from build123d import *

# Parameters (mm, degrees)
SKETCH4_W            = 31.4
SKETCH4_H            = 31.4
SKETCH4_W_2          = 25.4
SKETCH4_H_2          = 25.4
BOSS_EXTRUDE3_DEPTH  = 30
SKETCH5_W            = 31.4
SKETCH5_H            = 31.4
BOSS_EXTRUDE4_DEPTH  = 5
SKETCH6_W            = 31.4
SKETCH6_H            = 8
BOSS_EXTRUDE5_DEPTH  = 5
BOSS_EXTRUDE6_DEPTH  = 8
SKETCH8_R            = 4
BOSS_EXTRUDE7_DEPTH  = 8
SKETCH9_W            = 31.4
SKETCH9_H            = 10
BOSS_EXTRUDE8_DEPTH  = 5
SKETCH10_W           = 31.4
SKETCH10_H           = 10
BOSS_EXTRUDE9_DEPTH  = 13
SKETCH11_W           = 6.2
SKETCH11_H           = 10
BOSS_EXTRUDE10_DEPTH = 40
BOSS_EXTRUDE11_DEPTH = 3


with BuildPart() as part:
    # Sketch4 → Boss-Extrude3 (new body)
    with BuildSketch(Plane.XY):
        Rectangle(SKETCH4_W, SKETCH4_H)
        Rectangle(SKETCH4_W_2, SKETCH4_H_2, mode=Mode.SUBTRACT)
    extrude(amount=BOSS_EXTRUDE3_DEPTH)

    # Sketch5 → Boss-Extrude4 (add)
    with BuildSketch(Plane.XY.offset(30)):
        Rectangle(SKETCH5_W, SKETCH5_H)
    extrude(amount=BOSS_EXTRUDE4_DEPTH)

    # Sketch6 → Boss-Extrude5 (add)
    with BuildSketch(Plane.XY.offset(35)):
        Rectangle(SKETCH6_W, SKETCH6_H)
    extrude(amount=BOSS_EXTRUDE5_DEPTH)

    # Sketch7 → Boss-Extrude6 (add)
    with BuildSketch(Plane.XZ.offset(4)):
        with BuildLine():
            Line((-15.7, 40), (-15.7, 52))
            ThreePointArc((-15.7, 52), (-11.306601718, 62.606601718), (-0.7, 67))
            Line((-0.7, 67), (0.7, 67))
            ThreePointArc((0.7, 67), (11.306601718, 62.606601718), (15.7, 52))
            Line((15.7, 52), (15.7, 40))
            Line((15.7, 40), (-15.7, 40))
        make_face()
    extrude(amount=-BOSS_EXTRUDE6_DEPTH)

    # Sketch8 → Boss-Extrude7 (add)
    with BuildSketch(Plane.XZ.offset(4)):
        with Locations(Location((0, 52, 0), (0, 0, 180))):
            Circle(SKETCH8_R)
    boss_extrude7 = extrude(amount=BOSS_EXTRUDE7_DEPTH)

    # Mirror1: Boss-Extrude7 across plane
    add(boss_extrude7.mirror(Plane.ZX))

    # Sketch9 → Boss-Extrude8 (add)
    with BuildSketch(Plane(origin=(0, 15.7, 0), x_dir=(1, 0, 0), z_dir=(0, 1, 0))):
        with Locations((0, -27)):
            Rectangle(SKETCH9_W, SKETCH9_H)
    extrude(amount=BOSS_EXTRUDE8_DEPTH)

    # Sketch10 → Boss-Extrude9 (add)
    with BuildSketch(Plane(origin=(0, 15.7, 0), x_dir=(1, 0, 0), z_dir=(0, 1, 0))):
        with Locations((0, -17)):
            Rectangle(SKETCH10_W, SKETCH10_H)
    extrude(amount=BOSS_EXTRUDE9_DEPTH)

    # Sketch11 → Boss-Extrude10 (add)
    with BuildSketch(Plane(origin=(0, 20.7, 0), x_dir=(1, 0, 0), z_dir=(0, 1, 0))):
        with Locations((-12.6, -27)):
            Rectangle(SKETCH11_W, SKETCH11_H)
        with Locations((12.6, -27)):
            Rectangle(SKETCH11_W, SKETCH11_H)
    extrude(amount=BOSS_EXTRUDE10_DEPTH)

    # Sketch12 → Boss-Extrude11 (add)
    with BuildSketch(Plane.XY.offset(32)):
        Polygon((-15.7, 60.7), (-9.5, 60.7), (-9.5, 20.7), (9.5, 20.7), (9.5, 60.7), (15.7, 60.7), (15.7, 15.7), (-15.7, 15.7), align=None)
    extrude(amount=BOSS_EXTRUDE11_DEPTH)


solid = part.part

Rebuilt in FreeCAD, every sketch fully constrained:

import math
import FreeCAD as App
import Part
import Sketcher

V = App.Vector
Q = App.Units.Quantity

doc = App.newDocument("Part")
body = doc.addObject("PartDesign::Body", "Body")

# Sketch on XY plane
sketch1 = body.newObject("Sketcher::SketchObject", "Sketch")
sketch1.AttachmentSupport = (doc.getObject("XY_Plane"), [""])
sketch1.MapMode = "FlatFace"
sketch1.addGeometry([
    Part.LineSegment(V(-15.7, 15.7, 0), V(-15.7, -15.7, 0)),  # 0
    Part.LineSegment(V(-15.7, -15.7, 0), V(15.7, -15.7, 0)),  # 1
    Part.LineSegment(V(15.7, -15.7, 0), V(15.7, 15.7, 0)),  # 2
    Part.LineSegment(V(15.7, 15.7, 0), V(-15.7, 15.7, 0)),  # 3
    Part.LineSegment(V(12.7, -12.7, 0), V(-12.7, -12.7, 0)),  # 4
    Part.LineSegment(V(-12.7, -12.7, 0), V(-12.7, 12.7, 0)),  # 5
    Part.LineSegment(V(-12.7, 12.7, 0), V(12.7, 12.7, 0)),  # 6
    Part.LineSegment(V(12.7, 12.7, 0), V(12.7, -12.7, 0)),  # 7
], False)
sketch1.addConstraint([
    Sketcher.Constraint("Coincident", 0, 2, 1, 1),
    Sketcher.Constraint("Coincident", 1, 2, 2, 1),
    Sketcher.Constraint("Coincident", 2, 2, 3, 1),
    Sketcher.Constraint("Coincident", 3, 2, 0, 1),
    Sketcher.Constraint("Coincident", 4, 2, 5, 1),
    Sketcher.Constraint("Coincident", 5, 2, 6, 1),
    Sketcher.Constraint("Coincident", 6, 2, 7, 1),
    Sketcher.Constraint("Coincident", 7, 2, 4, 1),
    Sketcher.Constraint("Vertical", 0),
    Sketcher.Constraint("Horizontal", 1),
    Sketcher.Constraint("Vertical", 2),
    Sketcher.Constraint("Horizontal", 3),
    Sketcher.Constraint("Horizontal", 4),
    Sketcher.Constraint("Vertical", 5),
    Sketcher.Constraint("Horizontal", 6),
    Sketcher.Constraint("Vertical", 7),
    Sketcher.Constraint("Symmetric", 0, 2, 2, 2, -1, 1),
    Sketcher.Constraint("Symmetric", 4, 2, 6, 2, -1, 1),
    Sketcher.Constraint("Equal", 3, 0),
    Sketcher.Constraint("Equal", 6, 5),
    Sketcher.Constraint("DistanceX", 1, 1, 1, 2, Q("31.4 mm")),
    Sketcher.Constraint("DistanceX", 4, 2, 4, 1, Q("25.4 mm")),
])
pad1 = body.newObject("PartDesign::Pad", "Pad")
pad1.Profile = sketch1
pad1.Length = 30

# Sketch on XY plane
sketch2 = body.newObject("Sketcher::SketchObject", "Sketch001")
sketch2.AttachmentSupport = (doc.getObject("XY_Plane"), [""])
sketch2.MapMode = "FlatFace"
sketch2.AttachmentOffset = App.Placement(V(0, 0, 30), App.Rotation())
sketch2.addGeometry([
    Part.LineSegment(V(-15.7, 15.7, 0), V(-15.7, -15.7, 0)),
    Part.LineSegment(V(-15.7, -15.7, 0), V(15.7, -15.7, 0)),
    Part.LineSegment(V(15.7, -15.7, 0), V(15.7, 15.7, 0)),
    Part.LineSegment(V(15.7, 15.7, 0), V(-15.7, 15.7, 0)),
], False)
sketch2.addConstraint([
    Sketcher.Constraint("Coincident", 0, 2, 1, 1),
    Sketcher.Constraint("Coincident", 1, 2, 2, 1),
    Sketcher.Constraint("Coincident", 2, 2, 3, 1),
    Sketcher.Constraint("Coincident", 3, 2, 0, 1),
    Sketcher.Constraint("Vertical", 0),
    Sketcher.Constraint("Horizontal", 1),
    Sketcher.Constraint("Vertical", 2),
    Sketcher.Constraint("Horizontal", 3),
    Sketcher.Constraint("Symmetric", 0, 2, 2, 2, -1, 1),
    Sketcher.Constraint("Equal", 3, 0),
    Sketcher.Constraint("DistanceX", 1, 1, 1, 2, Q("31.4 mm")),
])
pad2 = body.newObject("PartDesign::Pad", "Pad001")
pad2.Profile = sketch2
pad2.Length = 5

# Sketch on XY plane
sketch3 = body.newObject("Sketcher::SketchObject", "Sketch002")
sketch3.AttachmentSupport = (doc.getObject("XY_Plane"), [""])
sketch3.MapMode = "FlatFace"
sketch3.AttachmentOffset = App.Placement(V(0, 0, 35), App.Rotation())
sketch3.addGeometry([
    Part.LineSegment(V(-15.7, 4, 0), V(-15.7, -4, 0)),
    Part.LineSegment(V(-15.7, -4, 0), V(15.7, -4, 0)),
    Part.LineSegment(V(15.7, -4, 0), V(15.7, 4, 0)),
    Part.LineSegment(V(15.7, 4, 0), V(-15.7, 4, 0)),
], False)
sketch3.addConstraint([
    Sketcher.Constraint("Coincident", 0, 2, 1, 1),
    Sketcher.Constraint("Coincident", 1, 2, 2, 1),
    Sketcher.Constraint("Coincident", 2, 2, 3, 1),
    Sketcher.Constraint("Coincident", 3, 2, 0, 1),
    Sketcher.Constraint("Vertical", 0),
    Sketcher.Constraint("Horizontal", 1),
    Sketcher.Constraint("Vertical", 2),
    Sketcher.Constraint("Horizontal", 3),
    Sketcher.Constraint("Symmetric", 0, 2, 2, 2, -1, 1),
    Sketcher.Constraint("DistanceY", 0, 2, 0, 1, Q("8 mm")),
    Sketcher.Constraint("DistanceX", 1, 1, 1, 2, Q("31.4 mm")),
])
pad3 = body.newObject("PartDesign::Pad", "Pad002")
pad3.Profile = sketch3
pad3.Length = 5

# Sketch on XZ plane
sketch4 = body.newObject("Sketcher::SketchObject", "Sketch003")
sketch4.AttachmentSupport = (doc.getObject("XZ_Plane"), [""])
sketch4.MapMode = "FlatFace"
sketch4.AttachmentOffset = App.Placement(V(0, 0, 4), App.Rotation())
sketch4.addGeometry([
    Part.LineSegment(V(-15.7, 52, 0), V(-15.7, 40, 0)),  # 0
    Part.LineSegment(V(-15.7, 40, 0), V(15.7, 40, 0)),  # 1
    Part.LineSegment(V(15.7, 40, 0), V(15.7, 52, 0)),  # 2
    Part.ArcOfCircle(Part.Circle(V(0.7, 52, 0), V(0, 0, 1), 15), math.radians(0), math.radians(90)),  # 3
    Part.LineSegment(V(0.7, 67, 0), V(-0.7, 67, 0)),  # 4
    Part.ArcOfCircle(Part.Circle(V(-0.7, 52, 0), V(0, 0, 1), 15), math.radians(90), math.radians(180)),  # 5
], False)
sketch4.addConstraint([
    Sketcher.Constraint("Coincident", 0, 2, 1, 1),
    Sketcher.Constraint("Coincident", 1, 2, 2, 1),
    Sketcher.Constraint("Tangent", 2, 2, 3, 1),
    Sketcher.Constraint("Tangent", 3, 2, 4, 1),
    Sketcher.Constraint("Tangent", 4, 2, 5, 1),
    Sketcher.Constraint("Tangent", 5, 2, 0, 1),
    Sketcher.Constraint("Vertical", 0),
    Sketcher.Constraint("Horizontal", 1),
    Sketcher.Constraint("Vertical", 2),
    Sketcher.Constraint("Horizontal", 4),
    Sketcher.Constraint("Equal", 3, 5),
    Sketcher.Constraint("Radius", 3, Q("15 mm")),
    Sketcher.Constraint("DistanceY", 0, 2, 0, 1, Q("12 mm")),
    Sketcher.Constraint("DistanceX", 1, 1, 1, 2, Q("31.4 mm")),
    Sketcher.Constraint("DistanceY", -1, 1, 3, 3, Q("52 mm")),
    Sketcher.Constraint("DistanceX", -1, 1, 3, 3, Q("0.7 mm")),
])
pad4 = body.newObject("PartDesign::Pad", "Pad003")
pad4.Profile = sketch4
pad4.Length = 8
pad4.Reversed = True

# Sketch on XZ plane
sketch5 = body.newObject("Sketcher::SketchObject", "Sketch004")
sketch5.AttachmentSupport = (doc.getObject("XZ_Plane"), [""])
sketch5.MapMode = "FlatFace"
sketch5.AttachmentOffset = App.Placement(V(0, 0, 4), App.Rotation())
sketch5.addGeometry(Part.Circle(V(0, 52, 0), V(0, 0, 1), 4), False)
sketch5.addConstraint([
    Sketcher.Constraint("PointOnObject", 0, 3, -2),
    Sketcher.Constraint("Diameter", 0, Q("8 mm")),
    Sketcher.Constraint("DistanceY", -1, 1, 0, 3, Q("52 mm")),
])
pad5 = body.newObject("PartDesign::Pad", "Pad004")
pad5.Profile = sketch5
pad5.Length = 8
doc.recompute()

mirrored = body.newObject("PartDesign::Mirrored", "Mirrored")
mirrored.Originals = [pad5]
mirrored.MirrorPlane = (doc.getObject("XZ_Plane"), [""])
body.Tip = mirrored

# Sketch on XZ plane
sketch6 = body.newObject("Sketcher::SketchObject", "Sketch005")
sketch6.AttachmentSupport = (doc.getObject("XZ_Plane"), [""])
sketch6.MapMode = "FlatFace"
sketch6.AttachmentOffset = App.Placement(V(0, 0, -15.7), App.Rotation())
sketch6.addGeometry([
    Part.LineSegment(V(-15.7, 22, 0), V(-15.7, 32, 0)),
    Part.LineSegment(V(-15.7, 32, 0), V(15.7, 32, 0)),
    Part.LineSegment(V(15.7, 32, 0), V(15.7, 22, 0)),
    Part.LineSegment(V(15.7, 22, 0), V(-15.7, 22, 0)),
], False)
sketch6.addConstraint([
    Sketcher.Constraint("Coincident", 0, 2, 1, 1),
    Sketcher.Constraint("Coincident", 1, 2, 2, 1),
    Sketcher.Constraint("Coincident", 2, 2, 3, 1),
    Sketcher.Constraint("Coincident", 3, 2, 0, 1),
    Sketcher.Constraint("Vertical", 0),
    Sketcher.Constraint("Horizontal", 1),
    Sketcher.Constraint("Vertical", 2),
    Sketcher.Constraint("Horizontal", 3),
    Sketcher.Constraint("DistanceY", 0, 1, 0, 2, Q("10 mm")),
    Sketcher.Constraint("DistanceX", 1, 1, 1, 2, Q("31.4 mm")),
    Sketcher.Constraint("DistanceY", -1, 1, 0, 2, Q("32 mm")),
    Sketcher.Constraint("DistanceX", 0, 2, -1, 1, Q("15.7 mm")),
])
pad6 = body.newObject("PartDesign::Pad", "Pad005")
pad6.Profile = sketch6
pad6.Length = 5
pad6.Reversed = True

# Sketch on XZ plane
sketch7 = body.newObject("Sketcher::SketchObject", "Sketch006")
sketch7.AttachmentSupport = (doc.getObject("XZ_Plane"), [""])
sketch7.MapMode = "FlatFace"
sketch7.AttachmentOffset = App.Placement(V(0, 0, -15.7), App.Rotation())
sketch7.addGeometry([
    Part.LineSegment(V(-15.7, 12, 0), V(-15.7, 22, 0)),
    Part.LineSegment(V(-15.7, 22, 0), V(15.7, 22, 0)),
    Part.LineSegment(V(15.7, 22, 0), V(15.7, 12, 0)),
    Part.LineSegment(V(15.7, 12, 0), V(-15.7, 12, 0)),
], False)
sketch7.addConstraint([
    Sketcher.Constraint("Coincident", 0, 2, 1, 1),
    Sketcher.Constraint("Coincident", 1, 2, 2, 1),
    Sketcher.Constraint("Coincident", 2, 2, 3, 1),
    Sketcher.Constraint("Coincident", 3, 2, 0, 1),
    Sketcher.Constraint("Vertical", 0),
    Sketcher.Constraint("Horizontal", 1),
    Sketcher.Constraint("Vertical", 2),
    Sketcher.Constraint("Horizontal", 3),
    Sketcher.Constraint("DistanceY", 0, 1, 0, 2, Q("10 mm")),
    Sketcher.Constraint("DistanceX", 1, 1, 1, 2, Q("31.4 mm")),
    Sketcher.Constraint("DistanceY", -1, 1, 0, 2, Q("22 mm")),
    Sketcher.Constraint("DistanceX", 0, 2, -1, 1, Q("15.7 mm")),
])
pad7 = body.newObject("PartDesign::Pad", "Pad006")
pad7.Profile = sketch7
pad7.Length = 13
pad7.Reversed = True

# Sketch on XZ plane
sketch8 = body.newObject("Sketcher::SketchObject", "Sketch007")
sketch8.AttachmentSupport = (doc.getObject("XZ_Plane"), [""])
sketch8.MapMode = "FlatFace"
sketch8.AttachmentOffset = App.Placement(V(0, 0, -20.7), App.Rotation())
sketch8.addGeometry([
    Part.LineSegment(V(-15.7, 22, 0), V(-15.7, 32, 0)),  # 0
    Part.LineSegment(V(-15.7, 32, 0), V(-9.5, 32, 0)),  # 1
    Part.LineSegment(V(-9.5, 32, 0), V(-9.5, 22, 0)),  # 2
    Part.LineSegment(V(-9.5, 22, 0), V(-15.7, 22, 0)),  # 3
    Part.LineSegment(V(9.5, 22, 0), V(9.5, 32, 0)),  # 4
    Part.LineSegment(V(9.5, 32, 0), V(15.7, 32, 0)),  # 5
    Part.LineSegment(V(15.7, 32, 0), V(15.7, 22, 0)),  # 6
    Part.LineSegment(V(15.7, 22, 0), V(9.5, 22, 0)),  # 7
], False)
sketch8.addConstraint([
    Sketcher.Constraint("Coincident", 0, 2, 1, 1),
    Sketcher.Constraint("Coincident", 1, 2, 2, 1),
    Sketcher.Constraint("Coincident", 2, 2, 3, 1),
    Sketcher.Constraint("Coincident", 3, 2, 0, 1),
    Sketcher.Constraint("Coincident", 4, 2, 5, 1),
    Sketcher.Constraint("Coincident", 5, 2, 6, 1),
    Sketcher.Constraint("Coincident", 6, 2, 7, 1),
    Sketcher.Constraint("Coincident", 7, 2, 4, 1),
    Sketcher.Constraint("Vertical", 0),
    Sketcher.Constraint("Horizontal", 1),
    Sketcher.Constraint("Vertical", 2),
    Sketcher.Constraint("Horizontal", 3),
    Sketcher.Constraint("Vertical", 4),
    Sketcher.Constraint("Horizontal", 5),
    Sketcher.Constraint("Vertical", 6),
    Sketcher.Constraint("Horizontal", 7),
    Sketcher.Constraint("Symmetric", 1, 2, 4, 2, -2),
    Sketcher.Constraint("Symmetric", 3, 2, 6, 2, -2),
    Sketcher.Constraint("DistanceY", 0, 1, 0, 2, Q("10 mm")),
    Sketcher.Constraint("DistanceX", 1, 1, 1, 2, Q("6.2 mm")),
    Sketcher.Constraint("DistanceY", -1, 1, 0, 2, Q("32 mm")),
    Sketcher.Constraint("DistanceX", 1, 2, 4, 2, Q("19 mm")),
])
pad8 = body.newObject("PartDesign::Pad", "Pad007")
pad8.Profile = sketch8
pad8.Length = 40
pad8.Reversed = True

# Sketch on XY plane
sketch9 = body.newObject("Sketcher::SketchObject", "Sketch008")
sketch9.AttachmentSupport = (doc.getObject("XY_Plane"), [""])
sketch9.MapMode = "FlatFace"
sketch9.AttachmentOffset = App.Placement(V(0, 0, 32), App.Rotation())
sketch9.addGeometry([
    Part.LineSegment(V(-9.5, 60.7, 0), V(-15.7, 60.7, 0)),  # 0
    Part.LineSegment(V(-15.7, 60.7, 0), V(-15.7, 15.7, 0)),  # 1
    Part.LineSegment(V(-15.7, 15.7, 0), V(15.7, 15.7, 0)),  # 2
    Part.LineSegment(V(15.7, 15.7, 0), V(15.7, 60.7, 0)),  # 3
    Part.LineSegment(V(15.7, 60.7, 0), V(9.5, 60.7, 0)),  # 4
    Part.LineSegment(V(9.5, 60.7, 0), V(9.5, 20.7, 0)),  # 5
    Part.LineSegment(V(9.5, 20.7, 0), V(-9.5, 20.7, 0)),  # 6
    Part.LineSegment(V(-9.5, 20.7, 0), V(-9.5, 60.7, 0)),  # 7
], False)
sketch9.addConstraint([
    Sketcher.Constraint("Coincident", 0, 2, 1, 1),
    Sketcher.Constraint("Coincident", 1, 2, 2, 1),
    Sketcher.Constraint("Coincident", 2, 2, 3, 1),
    Sketcher.Constraint("Coincident", 3, 2, 4, 1),
    Sketcher.Constraint("Coincident", 4, 2, 5, 1),
    Sketcher.Constraint("Coincident", 5, 2, 6, 1),
    Sketcher.Constraint("Coincident", 6, 2, 7, 1),
    Sketcher.Constraint("Coincident", 7, 2, 0, 1),
    Sketcher.Constraint("Horizontal", 0),
    Sketcher.Constraint("Vertical", 1),
    Sketcher.Constraint("Horizontal", 2),
    Sketcher.Constraint("Vertical", 3),
    Sketcher.Constraint("Horizontal", 4),
    Sketcher.Constraint("Vertical", 5),
    Sketcher.Constraint("Horizontal", 6),
    Sketcher.Constraint("Vertical", 7),
    Sketcher.Constraint("Symmetric", 0, 2, 3, 2, -2),
    Sketcher.Constraint("Equal", 0, 4),
    Sketcher.Constraint("DistanceX", 6, 2, 6, 1, Q("19 mm")),
    Sketcher.Constraint("DistanceY", 1, 2, 1, 1, Q("45 mm")),
    Sketcher.Constraint("DistanceY", 5, 2, 5, 1, Q("40 mm")),
    Sketcher.Constraint("DistanceX", 0, 2, 0, 1, Q("6.2 mm")),
    Sketcher.Constraint("DistanceY", -1, 1, 0, 2, Q("60.7 mm")),
])
pad9 = body.newObject("PartDesign::Pad", "Pad008")
pad9.Profile = sketch9
pad9.Length = 3

doc.recompute()
